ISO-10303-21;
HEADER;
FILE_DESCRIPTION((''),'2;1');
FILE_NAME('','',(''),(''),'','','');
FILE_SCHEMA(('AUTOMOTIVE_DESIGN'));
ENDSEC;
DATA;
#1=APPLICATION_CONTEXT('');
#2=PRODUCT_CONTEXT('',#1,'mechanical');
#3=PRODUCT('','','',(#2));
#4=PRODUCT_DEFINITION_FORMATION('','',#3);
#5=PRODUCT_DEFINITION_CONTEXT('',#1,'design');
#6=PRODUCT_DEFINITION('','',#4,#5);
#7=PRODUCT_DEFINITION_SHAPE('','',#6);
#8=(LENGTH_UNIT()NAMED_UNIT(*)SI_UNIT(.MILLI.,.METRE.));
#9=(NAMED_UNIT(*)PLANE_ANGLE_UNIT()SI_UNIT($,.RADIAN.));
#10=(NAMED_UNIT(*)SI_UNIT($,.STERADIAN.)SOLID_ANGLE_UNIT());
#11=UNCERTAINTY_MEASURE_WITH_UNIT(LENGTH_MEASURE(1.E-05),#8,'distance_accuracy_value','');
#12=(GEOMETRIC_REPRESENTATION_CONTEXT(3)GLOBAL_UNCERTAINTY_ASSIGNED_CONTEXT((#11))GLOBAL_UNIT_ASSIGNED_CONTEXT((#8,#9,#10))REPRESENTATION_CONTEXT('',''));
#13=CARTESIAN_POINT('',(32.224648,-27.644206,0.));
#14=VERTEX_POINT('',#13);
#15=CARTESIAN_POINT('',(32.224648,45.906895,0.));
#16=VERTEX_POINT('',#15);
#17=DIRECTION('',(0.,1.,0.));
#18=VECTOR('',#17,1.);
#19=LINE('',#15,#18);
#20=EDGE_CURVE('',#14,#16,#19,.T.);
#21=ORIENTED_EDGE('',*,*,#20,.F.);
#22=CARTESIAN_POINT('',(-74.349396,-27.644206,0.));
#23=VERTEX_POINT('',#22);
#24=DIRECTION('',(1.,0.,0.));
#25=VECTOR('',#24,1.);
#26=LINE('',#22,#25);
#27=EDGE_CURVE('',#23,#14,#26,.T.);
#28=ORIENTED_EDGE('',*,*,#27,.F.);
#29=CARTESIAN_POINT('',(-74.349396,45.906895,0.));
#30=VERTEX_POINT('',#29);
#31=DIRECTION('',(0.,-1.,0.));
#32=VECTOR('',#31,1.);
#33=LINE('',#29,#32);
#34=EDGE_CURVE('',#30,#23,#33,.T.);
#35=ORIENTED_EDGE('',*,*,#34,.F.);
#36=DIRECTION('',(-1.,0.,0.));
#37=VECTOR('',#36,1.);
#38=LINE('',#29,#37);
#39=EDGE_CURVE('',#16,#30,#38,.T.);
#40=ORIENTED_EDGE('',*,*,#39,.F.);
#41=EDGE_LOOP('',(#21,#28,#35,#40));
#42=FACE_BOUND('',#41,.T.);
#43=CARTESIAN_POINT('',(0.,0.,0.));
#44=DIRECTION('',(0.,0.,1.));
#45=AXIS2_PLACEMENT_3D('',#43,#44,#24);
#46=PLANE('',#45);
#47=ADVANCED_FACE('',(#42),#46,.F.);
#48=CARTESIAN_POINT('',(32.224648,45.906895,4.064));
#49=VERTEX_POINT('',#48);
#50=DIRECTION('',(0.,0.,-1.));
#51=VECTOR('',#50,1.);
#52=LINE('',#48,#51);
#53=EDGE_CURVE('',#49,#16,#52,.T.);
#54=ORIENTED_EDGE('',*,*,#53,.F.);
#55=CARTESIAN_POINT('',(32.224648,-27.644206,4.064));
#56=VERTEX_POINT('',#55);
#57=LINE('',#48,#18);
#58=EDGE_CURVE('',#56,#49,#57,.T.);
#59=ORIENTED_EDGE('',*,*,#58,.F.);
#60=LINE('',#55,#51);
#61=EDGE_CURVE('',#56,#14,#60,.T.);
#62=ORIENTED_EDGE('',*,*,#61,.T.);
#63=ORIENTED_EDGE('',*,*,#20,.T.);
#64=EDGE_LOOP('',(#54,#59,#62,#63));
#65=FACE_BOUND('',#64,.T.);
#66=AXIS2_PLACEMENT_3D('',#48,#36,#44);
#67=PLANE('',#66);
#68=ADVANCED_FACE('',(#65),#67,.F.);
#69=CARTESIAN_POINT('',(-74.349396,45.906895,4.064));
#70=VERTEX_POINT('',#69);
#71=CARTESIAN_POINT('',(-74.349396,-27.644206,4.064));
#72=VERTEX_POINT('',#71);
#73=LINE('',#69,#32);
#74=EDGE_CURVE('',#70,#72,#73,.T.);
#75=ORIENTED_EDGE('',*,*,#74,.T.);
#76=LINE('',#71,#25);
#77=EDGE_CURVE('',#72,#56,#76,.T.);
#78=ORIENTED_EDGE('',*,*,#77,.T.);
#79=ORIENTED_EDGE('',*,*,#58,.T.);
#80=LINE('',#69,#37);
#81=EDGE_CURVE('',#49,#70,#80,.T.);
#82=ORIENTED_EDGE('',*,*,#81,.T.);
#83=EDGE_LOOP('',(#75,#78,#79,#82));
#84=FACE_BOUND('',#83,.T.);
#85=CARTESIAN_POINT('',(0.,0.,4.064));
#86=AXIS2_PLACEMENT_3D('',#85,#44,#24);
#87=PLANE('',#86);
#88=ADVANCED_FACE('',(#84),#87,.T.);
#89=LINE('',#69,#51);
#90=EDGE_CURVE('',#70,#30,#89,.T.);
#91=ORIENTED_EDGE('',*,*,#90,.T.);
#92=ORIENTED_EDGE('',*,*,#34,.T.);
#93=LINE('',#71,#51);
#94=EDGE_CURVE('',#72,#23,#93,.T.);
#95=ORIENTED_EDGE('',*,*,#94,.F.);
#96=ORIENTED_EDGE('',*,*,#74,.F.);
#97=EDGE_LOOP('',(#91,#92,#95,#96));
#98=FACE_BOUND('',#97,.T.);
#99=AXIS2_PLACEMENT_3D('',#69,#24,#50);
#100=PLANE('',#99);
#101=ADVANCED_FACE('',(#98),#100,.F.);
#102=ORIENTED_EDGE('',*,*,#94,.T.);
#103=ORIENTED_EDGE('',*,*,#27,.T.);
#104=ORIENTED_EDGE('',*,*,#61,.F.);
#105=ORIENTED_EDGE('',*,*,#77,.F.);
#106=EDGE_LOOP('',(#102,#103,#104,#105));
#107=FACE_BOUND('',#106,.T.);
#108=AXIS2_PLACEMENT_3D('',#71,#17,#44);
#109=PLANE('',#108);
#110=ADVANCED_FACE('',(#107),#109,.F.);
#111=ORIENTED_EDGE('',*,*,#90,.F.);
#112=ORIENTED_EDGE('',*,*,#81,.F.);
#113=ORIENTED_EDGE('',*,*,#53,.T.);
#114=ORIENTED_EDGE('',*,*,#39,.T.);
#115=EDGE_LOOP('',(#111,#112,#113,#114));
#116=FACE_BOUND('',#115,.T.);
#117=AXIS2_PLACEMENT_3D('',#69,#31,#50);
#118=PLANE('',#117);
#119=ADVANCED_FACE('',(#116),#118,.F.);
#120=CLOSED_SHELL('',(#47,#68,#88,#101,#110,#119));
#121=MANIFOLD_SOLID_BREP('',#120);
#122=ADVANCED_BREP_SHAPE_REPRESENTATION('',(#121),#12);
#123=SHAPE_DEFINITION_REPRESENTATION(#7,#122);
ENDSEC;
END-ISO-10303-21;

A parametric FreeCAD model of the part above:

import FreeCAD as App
import Part
import Sketcher
from FreeCAD import Vector

doc = App.newDocument("Part")
params = doc.addObject("Spreadsheet::Sheet", "Params")
for row, (alias, value) in enumerate([
    ("pad1_length", "0.16 in"),
], start=1):
    params.set(f"A{row}", alias)
    params.set(f"B{row}", "=" + value)
    params.setAlias(f"B{row}", alias)

body = doc.addObject("PartDesign::Body", "Body")

sketch1 = doc.addObject("Sketcher::SketchObject", "Sketch")
body.addObject(sketch1)
sketch1.AttachmentSupport = (doc.XY_Plane, [""])
sketch1.MapMode = "FlatFace"
sketch1.addGeometry([
    Part.LineSegment(Vector(-74, 46, 0), Vector(-74, -28, 0)),
    Part.LineSegment(Vector(-74, -28, 0), Vector(32, -28, 0)),
    Part.LineSegment(Vector(32, -28, 0), Vector(32, 46, 0)),
    Part.LineSegment(Vector(32, 46, 0), Vector(-74, 46, 0)),
], False)
sketch1.addConstraint([
    Sketcher.Constraint("Coincident", 0, 2, 1, 1),
    Sketcher.Constraint("Coincident", 1, 2, 2, 1),
    Sketcher.Constraint("Coincident", 2, 2, 3, 1),
    Sketcher.Constraint("Coincident", 3, 2, 0, 1),
    Sketcher.Constraint("Vertical", 0),
    Sketcher.Constraint("Horizontal", 1),
    Sketcher.Constraint("Vertical", 2),
    Sketcher.Constraint("Horizontal", 3),
    Sketcher.Constraint("DistanceY", 0, 2, 0, 1, 73.551101),
    Sketcher.Constraint("DistanceX", 1, 1, 1, 2, 106.574044),
    Sketcher.Constraint("DistanceX", -1, 1, 1, 2, 32.224648),
    Sketcher.Constraint("DistanceY", 0, 2, -1, 1, 27.644206),
])
pad1 = doc.addObject("PartDesign::Pad", "Pad")
body.addObject(pad1)
pad1.Profile = sketch1
pad1.setExpression("Length", "Params.pad1_length")

doc.recompute()
